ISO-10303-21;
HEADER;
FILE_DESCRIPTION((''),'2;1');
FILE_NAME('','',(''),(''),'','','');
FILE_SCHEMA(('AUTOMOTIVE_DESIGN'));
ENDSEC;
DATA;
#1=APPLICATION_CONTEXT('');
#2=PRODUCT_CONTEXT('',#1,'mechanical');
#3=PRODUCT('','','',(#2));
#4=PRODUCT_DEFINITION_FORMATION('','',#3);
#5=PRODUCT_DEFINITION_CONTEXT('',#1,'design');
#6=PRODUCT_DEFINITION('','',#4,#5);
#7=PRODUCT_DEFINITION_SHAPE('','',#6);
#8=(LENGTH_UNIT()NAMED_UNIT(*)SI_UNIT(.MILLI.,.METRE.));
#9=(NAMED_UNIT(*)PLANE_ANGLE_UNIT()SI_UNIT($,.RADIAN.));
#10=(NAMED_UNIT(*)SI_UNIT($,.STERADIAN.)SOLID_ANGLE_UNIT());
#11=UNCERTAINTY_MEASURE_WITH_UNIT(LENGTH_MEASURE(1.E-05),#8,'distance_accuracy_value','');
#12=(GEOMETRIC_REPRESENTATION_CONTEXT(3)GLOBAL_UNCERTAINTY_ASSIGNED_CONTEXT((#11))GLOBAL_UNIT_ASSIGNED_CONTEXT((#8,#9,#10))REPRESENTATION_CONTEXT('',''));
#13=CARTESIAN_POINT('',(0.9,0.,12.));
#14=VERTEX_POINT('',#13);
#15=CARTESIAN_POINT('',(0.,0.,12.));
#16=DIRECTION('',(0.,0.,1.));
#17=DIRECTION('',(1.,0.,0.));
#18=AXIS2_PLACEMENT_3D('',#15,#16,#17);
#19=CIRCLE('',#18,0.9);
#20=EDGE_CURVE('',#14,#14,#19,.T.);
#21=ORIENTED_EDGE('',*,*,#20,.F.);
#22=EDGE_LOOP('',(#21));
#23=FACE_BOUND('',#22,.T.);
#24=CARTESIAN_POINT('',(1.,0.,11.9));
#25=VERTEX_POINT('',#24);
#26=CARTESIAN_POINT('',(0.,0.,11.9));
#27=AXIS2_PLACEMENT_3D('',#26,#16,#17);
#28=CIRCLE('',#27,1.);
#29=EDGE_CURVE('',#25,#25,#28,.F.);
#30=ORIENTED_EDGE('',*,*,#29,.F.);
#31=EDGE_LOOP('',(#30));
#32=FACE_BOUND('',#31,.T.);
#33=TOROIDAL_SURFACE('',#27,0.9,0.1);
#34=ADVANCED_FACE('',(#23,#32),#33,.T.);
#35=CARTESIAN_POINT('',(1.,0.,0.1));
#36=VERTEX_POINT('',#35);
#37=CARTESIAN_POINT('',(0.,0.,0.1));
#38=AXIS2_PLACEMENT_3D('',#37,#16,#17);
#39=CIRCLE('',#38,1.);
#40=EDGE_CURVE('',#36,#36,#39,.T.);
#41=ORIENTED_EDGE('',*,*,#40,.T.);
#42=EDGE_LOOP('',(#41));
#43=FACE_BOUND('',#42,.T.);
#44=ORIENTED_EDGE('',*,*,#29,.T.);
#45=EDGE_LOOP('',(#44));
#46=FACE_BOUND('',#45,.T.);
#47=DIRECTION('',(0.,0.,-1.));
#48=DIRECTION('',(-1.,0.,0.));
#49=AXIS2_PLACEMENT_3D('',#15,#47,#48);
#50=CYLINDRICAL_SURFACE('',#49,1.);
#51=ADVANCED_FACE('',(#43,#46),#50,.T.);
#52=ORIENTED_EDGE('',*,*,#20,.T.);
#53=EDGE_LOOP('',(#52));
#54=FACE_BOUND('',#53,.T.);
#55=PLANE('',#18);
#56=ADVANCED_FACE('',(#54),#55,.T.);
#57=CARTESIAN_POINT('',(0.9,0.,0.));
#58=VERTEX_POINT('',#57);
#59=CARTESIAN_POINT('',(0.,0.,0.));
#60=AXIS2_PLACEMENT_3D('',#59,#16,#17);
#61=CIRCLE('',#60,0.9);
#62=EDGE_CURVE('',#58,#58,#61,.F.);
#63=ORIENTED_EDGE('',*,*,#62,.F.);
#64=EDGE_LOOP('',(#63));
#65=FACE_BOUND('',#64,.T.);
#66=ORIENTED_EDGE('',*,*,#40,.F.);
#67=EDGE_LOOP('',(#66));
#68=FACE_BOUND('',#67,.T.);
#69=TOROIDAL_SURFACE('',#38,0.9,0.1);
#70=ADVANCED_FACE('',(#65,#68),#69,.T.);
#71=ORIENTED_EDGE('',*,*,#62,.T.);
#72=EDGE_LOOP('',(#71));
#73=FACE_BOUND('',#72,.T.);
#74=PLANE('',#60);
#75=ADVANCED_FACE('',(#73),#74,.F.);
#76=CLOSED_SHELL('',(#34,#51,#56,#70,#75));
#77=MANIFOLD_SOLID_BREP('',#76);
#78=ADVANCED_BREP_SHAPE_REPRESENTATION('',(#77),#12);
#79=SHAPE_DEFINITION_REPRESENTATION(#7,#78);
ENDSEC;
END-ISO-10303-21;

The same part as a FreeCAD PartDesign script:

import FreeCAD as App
import Part
import Sketcher


def edges_at(feature, points):
    """Names of the edges that pass closest to the given points."""
    edges = feature.Shape.Edges
    near = lambda p: min(range(len(edges)), key=lambda i: edges[i].distToShape(Part.Vertex(*p))[0])
    return sorted({f"Edge{near(p) + 1}" for p in points})

doc = App.newDocument("Part")
body = doc.addObject("PartDesign::Body", "Body")

# Sketch on XY plane
sketch1 = body.newObject("Sketcher::SketchObject", "Sketch")
sketch1.AttachmentSupport = (doc.getObject("XY_Plane"), [""])
sketch1.MapMode = "FlatFace"
sketch1.addGeometry(Part.Circle(App.Vector(0, 0, 0), App.Vector(0, 0, 1), 1), False)
sketch1.addConstraint(Sketcher.Constraint("Coincident", 0, 3, -1, 1))
sketch1.addConstraint(Sketcher.Constraint("Diameter", 0, 2.0))
pad1 = body.newObject("PartDesign::Pad", "Pad")
pad1.Profile = sketch1
pad1.Length = 12
doc.recompute()

fillet = body.newObject("PartDesign::Fillet", "Fillet")
fillet.Base = (pad1, edges_at(pad1, [(-1, 0, 0), (-1, 0, 12)]))
fillet.Radius = 0.1

doc.recompute()
